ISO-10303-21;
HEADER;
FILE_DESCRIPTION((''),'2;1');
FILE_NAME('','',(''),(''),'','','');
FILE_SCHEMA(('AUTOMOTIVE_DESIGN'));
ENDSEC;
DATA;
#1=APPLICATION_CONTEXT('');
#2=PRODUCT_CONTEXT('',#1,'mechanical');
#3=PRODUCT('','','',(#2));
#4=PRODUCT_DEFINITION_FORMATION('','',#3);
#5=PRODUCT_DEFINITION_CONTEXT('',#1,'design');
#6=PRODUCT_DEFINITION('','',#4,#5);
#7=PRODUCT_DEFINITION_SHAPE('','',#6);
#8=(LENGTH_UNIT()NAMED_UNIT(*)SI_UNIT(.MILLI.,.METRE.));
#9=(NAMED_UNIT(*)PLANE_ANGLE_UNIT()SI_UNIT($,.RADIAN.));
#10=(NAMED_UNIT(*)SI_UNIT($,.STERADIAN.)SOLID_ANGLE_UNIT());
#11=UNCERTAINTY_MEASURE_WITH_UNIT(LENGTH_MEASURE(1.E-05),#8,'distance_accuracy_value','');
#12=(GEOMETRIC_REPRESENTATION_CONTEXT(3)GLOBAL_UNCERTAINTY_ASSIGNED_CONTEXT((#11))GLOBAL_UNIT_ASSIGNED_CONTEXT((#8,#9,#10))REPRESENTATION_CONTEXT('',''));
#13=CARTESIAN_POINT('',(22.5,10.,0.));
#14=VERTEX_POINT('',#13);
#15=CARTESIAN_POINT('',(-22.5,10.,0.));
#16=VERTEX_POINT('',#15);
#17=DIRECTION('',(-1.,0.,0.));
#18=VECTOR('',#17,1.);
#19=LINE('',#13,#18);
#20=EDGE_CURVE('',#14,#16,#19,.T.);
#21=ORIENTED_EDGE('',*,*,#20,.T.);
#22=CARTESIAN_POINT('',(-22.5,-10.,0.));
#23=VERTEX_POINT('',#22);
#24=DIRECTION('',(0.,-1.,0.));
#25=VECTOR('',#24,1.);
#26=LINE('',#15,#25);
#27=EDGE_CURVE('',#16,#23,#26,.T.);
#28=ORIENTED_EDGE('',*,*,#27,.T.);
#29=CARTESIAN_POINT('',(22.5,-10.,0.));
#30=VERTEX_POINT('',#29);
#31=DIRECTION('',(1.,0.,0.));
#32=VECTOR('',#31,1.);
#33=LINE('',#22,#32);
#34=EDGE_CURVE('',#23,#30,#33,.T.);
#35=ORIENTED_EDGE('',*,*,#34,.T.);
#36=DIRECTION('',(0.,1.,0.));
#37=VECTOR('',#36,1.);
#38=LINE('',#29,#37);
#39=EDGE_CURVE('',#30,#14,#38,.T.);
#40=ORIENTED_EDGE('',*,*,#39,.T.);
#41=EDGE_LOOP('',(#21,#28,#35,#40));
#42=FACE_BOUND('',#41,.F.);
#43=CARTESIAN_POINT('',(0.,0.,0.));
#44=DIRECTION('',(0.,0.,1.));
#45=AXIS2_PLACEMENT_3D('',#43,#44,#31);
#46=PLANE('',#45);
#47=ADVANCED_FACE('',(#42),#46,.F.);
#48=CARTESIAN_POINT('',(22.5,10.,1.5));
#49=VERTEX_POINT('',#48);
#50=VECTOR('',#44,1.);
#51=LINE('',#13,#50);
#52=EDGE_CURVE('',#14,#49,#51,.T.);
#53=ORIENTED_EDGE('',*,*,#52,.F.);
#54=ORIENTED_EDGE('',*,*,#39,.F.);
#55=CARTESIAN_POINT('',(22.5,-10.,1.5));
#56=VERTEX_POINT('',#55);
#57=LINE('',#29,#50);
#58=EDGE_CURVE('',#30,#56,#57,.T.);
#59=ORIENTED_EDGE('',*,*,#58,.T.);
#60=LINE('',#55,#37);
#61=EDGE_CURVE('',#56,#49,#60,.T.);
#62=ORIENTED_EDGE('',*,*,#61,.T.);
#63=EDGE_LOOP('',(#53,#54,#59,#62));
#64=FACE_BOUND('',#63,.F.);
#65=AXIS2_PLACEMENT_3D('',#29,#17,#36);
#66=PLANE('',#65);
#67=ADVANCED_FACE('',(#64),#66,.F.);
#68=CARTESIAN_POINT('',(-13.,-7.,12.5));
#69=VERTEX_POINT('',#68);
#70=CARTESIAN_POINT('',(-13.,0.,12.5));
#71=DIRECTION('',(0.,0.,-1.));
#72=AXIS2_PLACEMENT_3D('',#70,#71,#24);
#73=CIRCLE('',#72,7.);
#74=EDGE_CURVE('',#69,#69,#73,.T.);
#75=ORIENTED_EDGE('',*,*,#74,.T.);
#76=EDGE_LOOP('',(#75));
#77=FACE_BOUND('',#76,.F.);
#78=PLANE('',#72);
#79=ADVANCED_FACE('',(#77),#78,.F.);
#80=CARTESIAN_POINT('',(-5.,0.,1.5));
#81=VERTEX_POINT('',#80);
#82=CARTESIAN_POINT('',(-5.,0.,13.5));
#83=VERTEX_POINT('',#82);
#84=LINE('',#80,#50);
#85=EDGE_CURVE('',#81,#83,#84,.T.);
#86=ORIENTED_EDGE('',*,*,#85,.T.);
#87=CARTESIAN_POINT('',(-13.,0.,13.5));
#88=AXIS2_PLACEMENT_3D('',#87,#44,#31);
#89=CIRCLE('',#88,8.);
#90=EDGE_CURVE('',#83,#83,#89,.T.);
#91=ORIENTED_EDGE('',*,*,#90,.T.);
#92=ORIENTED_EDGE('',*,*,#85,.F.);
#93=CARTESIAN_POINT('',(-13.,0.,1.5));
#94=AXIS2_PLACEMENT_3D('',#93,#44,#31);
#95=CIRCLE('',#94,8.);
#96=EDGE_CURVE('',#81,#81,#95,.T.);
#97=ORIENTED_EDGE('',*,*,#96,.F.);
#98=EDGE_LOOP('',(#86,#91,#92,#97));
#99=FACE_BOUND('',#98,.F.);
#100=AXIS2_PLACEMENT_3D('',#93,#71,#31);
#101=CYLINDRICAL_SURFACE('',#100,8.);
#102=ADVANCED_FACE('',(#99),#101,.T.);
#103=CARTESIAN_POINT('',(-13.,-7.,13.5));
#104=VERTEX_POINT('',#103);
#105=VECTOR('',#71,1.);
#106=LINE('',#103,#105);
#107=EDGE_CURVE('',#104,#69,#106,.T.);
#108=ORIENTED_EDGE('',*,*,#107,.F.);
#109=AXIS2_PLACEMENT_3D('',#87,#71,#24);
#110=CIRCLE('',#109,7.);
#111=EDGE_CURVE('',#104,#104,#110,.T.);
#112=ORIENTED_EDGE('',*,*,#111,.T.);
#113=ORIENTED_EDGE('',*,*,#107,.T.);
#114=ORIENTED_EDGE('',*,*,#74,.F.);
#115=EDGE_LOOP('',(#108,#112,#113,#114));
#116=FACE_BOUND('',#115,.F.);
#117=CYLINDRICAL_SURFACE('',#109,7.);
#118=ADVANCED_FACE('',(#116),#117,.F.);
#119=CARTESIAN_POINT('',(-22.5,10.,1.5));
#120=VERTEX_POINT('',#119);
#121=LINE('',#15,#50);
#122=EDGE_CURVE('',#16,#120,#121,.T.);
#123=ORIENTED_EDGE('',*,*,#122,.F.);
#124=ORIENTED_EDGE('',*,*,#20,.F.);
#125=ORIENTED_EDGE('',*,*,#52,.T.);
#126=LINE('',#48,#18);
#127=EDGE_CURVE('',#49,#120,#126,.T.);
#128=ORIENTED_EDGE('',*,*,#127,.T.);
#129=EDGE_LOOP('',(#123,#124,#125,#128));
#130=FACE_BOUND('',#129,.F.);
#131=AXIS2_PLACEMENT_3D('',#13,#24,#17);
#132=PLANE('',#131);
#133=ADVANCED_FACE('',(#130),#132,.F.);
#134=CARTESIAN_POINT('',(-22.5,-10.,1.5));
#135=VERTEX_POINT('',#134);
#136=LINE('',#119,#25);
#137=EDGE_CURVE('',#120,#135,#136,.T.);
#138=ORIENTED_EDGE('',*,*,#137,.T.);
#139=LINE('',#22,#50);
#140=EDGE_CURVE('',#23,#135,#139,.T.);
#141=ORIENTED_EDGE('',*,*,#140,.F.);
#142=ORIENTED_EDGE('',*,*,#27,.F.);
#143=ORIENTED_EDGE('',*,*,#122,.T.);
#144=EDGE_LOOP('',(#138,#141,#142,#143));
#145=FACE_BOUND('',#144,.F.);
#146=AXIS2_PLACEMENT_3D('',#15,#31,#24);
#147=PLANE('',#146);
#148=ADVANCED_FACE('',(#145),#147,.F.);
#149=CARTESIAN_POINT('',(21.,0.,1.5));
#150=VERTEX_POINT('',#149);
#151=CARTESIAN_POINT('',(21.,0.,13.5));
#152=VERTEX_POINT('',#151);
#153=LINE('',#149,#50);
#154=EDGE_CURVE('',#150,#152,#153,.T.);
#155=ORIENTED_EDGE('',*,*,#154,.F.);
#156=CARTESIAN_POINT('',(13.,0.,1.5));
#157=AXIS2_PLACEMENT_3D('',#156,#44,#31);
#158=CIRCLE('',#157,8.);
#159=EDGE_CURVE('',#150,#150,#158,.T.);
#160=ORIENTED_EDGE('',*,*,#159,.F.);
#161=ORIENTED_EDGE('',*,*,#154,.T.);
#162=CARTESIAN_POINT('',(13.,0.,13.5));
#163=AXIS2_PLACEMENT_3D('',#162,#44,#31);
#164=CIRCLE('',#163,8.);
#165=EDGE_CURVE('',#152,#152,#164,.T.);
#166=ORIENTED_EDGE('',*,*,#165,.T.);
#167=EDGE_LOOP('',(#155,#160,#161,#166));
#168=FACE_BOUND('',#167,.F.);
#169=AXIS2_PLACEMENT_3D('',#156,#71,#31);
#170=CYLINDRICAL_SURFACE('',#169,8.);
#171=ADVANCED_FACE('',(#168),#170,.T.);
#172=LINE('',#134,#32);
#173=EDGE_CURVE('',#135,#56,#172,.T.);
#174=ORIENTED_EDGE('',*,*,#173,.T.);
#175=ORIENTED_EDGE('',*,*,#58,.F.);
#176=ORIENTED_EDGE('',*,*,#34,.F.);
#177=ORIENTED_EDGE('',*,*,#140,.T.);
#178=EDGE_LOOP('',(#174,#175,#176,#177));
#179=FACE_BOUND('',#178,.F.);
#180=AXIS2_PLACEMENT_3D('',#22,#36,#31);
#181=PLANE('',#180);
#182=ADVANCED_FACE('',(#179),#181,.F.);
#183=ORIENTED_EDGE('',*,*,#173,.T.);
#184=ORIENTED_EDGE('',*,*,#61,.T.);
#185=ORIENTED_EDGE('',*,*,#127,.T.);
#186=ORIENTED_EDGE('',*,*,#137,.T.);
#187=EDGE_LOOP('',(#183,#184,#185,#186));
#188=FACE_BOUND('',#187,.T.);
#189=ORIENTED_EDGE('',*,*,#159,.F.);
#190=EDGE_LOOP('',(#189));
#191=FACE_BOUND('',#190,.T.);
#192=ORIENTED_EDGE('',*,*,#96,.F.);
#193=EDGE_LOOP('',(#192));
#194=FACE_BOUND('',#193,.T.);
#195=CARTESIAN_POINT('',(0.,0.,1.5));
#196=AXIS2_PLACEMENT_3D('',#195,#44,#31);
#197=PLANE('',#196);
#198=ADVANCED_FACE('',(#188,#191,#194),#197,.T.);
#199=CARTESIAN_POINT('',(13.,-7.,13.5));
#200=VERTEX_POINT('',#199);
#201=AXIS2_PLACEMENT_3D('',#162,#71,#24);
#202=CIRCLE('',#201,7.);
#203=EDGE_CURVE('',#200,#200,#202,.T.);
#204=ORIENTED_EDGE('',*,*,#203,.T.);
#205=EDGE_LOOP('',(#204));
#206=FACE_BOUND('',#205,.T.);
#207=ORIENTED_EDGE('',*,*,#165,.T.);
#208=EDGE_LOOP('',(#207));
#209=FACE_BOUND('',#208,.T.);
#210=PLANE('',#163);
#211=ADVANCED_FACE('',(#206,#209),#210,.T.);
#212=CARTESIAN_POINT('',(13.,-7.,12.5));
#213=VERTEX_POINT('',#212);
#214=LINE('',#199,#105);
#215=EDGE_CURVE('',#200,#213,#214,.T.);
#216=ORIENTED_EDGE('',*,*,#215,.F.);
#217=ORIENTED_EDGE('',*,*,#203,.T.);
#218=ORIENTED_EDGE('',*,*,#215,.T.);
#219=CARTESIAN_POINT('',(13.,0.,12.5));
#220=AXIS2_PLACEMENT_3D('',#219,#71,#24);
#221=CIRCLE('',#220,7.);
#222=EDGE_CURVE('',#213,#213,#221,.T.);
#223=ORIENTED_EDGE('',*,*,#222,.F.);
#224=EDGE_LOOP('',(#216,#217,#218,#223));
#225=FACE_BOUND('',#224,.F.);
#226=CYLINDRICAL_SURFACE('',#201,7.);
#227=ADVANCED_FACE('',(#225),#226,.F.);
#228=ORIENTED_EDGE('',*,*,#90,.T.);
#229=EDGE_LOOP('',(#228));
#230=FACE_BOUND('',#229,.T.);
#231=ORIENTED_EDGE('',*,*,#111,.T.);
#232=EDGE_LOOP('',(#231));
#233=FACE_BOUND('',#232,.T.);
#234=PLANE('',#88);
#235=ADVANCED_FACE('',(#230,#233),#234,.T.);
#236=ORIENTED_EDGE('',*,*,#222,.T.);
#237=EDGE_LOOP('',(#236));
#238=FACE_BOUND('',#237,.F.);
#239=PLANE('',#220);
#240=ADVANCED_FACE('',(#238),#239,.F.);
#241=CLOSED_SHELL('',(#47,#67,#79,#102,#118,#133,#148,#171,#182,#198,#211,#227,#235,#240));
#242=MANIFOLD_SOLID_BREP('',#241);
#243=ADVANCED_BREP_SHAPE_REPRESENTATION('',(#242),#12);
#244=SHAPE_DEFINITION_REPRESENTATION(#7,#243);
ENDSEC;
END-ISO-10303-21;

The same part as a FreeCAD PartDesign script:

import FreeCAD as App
import Part
import Sketcher
from FreeCAD import Vector
Q = App.Units.Quantity


def add_polygon(sketch, points):
    """Adds a closed chain of lines whose ends are joined by coincident constraints."""
    first, n = sketch.GeometryCount, len(points)
    for a, b in zip(points, points[1:] + points[:1]):
        sketch.addGeometry(Part.LineSegment(App.Vector(*a, 0), App.Vector(*b, 0)), False)
    for i in range(n):
        sketch.addConstraint(Sketcher.Constraint("Coincident", first + i, 2, first + (i + 1) % n, 1))

doc = App.newDocument("Part")
body = doc.addObject("PartDesign::Body", "Body")

sketch1 = body.newObject("Sketcher::SketchObject", "Sketch")
sketch1.AttachmentSupport = (doc.getObject("XY_Plane"), [""])
sketch1.MapMode = "FlatFace"
add_polygon(sketch1, [(-22, 10), (-22, -10), (22, -10), (22, 10)])
sketch1.addConstraint([
    Sketcher.Constraint("Vertical", 0),
    Sketcher.Constraint("Horizontal", 1),
    Sketcher.Constraint("Vertical", 2),
    Sketcher.Constraint("Horizontal", 3),
    Sketcher.Constraint("Symmetric", 0, 2, 2, 2, -1, 1),
    Sketcher.Constraint("DistanceX", 1, 1, 1, 2, Q("45 mm")),
    Sketcher.Constraint("DistanceY", 0, 2, 0, 1, Q("20 mm")),
])
pad1 = body.newObject("PartDesign::Pad", "Pad")
pad1.Profile = sketch1
pad1.Length = 1.5

sketch2 = body.newObject("Sketcher::SketchObject", "Sketch001")
sketch2.AttachmentSupport = (doc.getObject("XY_Plane"), [""])
sketch2.MapMode = "FlatFace"
sketch2.AttachmentOffset = App.Placement(Vector(0, 0, 1.5), App.Rotation())
sketch2.addGeometry([
    Part.Circle(Vector(-13, 0, 0), Vector(0, 0, 1), 8),
    Part.Circle(Vector(13, 0, 0), Vector(0, 0, 1), 8),
], False)
sketch2.addConstraint([
    Sketcher.Constraint("Equal", 0, 1),
    Sketcher.Constraint("Symmetric", 0, 3, 1, 3, -1, 1),
    Sketcher.Constraint("PointOnObject", 0, 3, -1),
    Sketcher.Constraint("Diameter", 0, Q("16 mm")),
    Sketcher.Constraint("DistanceX", 0, 3, -1, 1, Q("13 mm")),
])
pad2 = body.newObject("PartDesign::Pad", "Pad001")
pad2.Profile = sketch2
pad2.Length = 12

sketch3 = body.newObject("Sketcher::SketchObject", "Sketch002")
sketch3.AttachmentSupport = (doc.getObject("XY_Plane"), [""])
sketch3.MapMode = "FlatFace"
sketch3.AttachmentOffset = App.Placement(Vector(0, 0, 13.5), App.Rotation())
sketch3.addGeometry(Part.Circle(Vector(-13, 0, 0), Vector(0, 0, 1), 7), False)
sketch3.addConstraint([
    Sketcher.Constraint("PointOnObject", 0, 3, -1),
    Sketcher.Constraint("Diameter", 0, Q("14 mm")),
    Sketcher.Constraint("DistanceX", 0, 3, -1, 1, Q("13 mm")),
])
doc.recompute()
hole = body.newObject("PartDesign::Hole", "Hole")
hole.Profile = sketch3
hole.ThreadType = "None"
hole.Diameter = 14
hole.DepthType = "Dimension"
hole.Depth = 1
hole.DrillPoint = "Flat"

sketch4 = body.newObject("Sketcher::SketchObject", "Sketch003")
sketch4.AttachmentSupport = (doc.getObject("XY_Plane"), [""])
sketch4.MapMode = "FlatFace"
sketch4.AttachmentOffset = App.Placement(Vector(0, 0, 13.5), App.Rotation())
sketch4.addGeometry(Part.Circle(Vector(13, 0, 0), Vector(0, 0, 1), 7), False)
sketch4.addConstraint([
    Sketcher.Constraint("PointOnObject", 0, 3, -1),
    Sketcher.Constraint("Diameter", 0, Q("14 mm")),
    Sketcher.Constraint("DistanceX", -1, 1, 0, 3, Q("13 mm")),
])
doc.recompute()
hole2 = body.newObject("PartDesign::Hole", "Hole001")
hole2.Profile = sketch4
hole2.ThreadType = "None"
hole2.Diameter = 14
hole2.DepthType = "Dimension"
hole2.Depth = 1
hole2.DrillPoint = "Flat"

doc.recompute()
